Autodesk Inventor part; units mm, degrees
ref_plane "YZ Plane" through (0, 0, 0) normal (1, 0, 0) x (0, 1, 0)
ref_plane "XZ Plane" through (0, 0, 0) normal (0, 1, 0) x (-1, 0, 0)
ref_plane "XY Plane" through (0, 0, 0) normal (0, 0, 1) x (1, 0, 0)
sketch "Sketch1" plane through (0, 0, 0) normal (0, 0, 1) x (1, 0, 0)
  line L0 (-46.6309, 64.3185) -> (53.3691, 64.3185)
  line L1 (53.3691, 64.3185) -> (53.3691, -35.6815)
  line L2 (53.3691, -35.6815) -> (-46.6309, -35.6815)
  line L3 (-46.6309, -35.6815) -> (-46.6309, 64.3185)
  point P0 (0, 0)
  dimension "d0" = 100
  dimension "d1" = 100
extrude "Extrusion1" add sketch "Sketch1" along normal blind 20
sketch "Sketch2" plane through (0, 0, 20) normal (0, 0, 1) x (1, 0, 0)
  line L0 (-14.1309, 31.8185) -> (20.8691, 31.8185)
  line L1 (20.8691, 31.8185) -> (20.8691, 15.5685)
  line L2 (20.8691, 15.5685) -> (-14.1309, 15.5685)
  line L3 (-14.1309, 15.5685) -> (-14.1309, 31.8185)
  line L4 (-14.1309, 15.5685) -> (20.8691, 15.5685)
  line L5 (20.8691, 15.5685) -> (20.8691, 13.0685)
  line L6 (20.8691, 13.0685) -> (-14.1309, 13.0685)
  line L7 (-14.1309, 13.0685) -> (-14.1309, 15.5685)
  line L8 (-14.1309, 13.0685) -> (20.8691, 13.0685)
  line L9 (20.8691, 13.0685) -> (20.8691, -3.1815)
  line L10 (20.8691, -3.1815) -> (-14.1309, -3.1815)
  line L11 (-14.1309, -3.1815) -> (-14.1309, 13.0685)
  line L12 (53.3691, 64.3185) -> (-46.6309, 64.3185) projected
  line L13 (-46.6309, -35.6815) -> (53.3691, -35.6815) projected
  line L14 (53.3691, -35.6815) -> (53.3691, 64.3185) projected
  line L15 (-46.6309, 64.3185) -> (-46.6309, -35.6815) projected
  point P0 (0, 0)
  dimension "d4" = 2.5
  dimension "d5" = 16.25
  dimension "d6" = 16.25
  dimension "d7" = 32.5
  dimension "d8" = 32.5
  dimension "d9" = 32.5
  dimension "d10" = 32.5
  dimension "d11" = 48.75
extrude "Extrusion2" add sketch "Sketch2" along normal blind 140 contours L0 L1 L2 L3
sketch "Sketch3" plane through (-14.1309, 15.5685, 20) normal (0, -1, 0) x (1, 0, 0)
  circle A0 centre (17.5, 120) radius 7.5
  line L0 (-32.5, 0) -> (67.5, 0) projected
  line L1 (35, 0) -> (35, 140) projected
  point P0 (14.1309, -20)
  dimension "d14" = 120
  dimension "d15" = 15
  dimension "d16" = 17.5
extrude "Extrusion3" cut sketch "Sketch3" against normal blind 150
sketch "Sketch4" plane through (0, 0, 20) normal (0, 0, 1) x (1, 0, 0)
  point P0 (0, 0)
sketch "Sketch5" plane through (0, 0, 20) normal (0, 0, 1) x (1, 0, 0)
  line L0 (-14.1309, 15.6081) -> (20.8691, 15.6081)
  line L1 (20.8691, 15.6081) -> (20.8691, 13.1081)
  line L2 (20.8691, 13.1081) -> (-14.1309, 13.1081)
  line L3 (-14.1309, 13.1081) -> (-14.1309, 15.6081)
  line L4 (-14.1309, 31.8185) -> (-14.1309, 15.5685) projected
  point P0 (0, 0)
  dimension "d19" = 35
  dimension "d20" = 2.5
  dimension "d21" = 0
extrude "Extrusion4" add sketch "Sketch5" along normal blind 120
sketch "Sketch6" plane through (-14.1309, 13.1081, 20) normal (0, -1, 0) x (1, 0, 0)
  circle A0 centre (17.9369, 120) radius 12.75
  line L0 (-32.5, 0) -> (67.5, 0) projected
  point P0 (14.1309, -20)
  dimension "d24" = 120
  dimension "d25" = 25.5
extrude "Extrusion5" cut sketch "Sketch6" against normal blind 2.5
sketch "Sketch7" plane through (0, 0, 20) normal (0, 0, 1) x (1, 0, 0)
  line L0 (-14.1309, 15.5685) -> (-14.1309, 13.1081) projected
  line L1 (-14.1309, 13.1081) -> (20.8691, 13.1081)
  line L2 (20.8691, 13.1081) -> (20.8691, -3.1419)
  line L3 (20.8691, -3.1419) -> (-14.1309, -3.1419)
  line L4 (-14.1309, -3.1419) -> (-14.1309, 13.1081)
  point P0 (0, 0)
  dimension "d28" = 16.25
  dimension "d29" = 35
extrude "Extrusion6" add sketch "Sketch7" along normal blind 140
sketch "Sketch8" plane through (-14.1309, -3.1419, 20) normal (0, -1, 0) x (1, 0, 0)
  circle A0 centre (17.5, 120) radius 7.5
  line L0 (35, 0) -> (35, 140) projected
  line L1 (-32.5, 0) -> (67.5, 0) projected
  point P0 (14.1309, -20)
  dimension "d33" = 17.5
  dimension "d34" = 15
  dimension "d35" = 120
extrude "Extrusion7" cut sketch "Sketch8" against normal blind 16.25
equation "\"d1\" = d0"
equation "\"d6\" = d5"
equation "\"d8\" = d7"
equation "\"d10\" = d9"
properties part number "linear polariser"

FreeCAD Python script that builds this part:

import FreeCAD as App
import Part
import Sketcher

V = App.Vector

doc = App.newDocument("Part")
body = doc.addObject("PartDesign::Body", "Body")

sketch1 = body.newObject("Sketcher::SketchObject", "Sketch")
sketch1.AttachmentSupport = (doc.getObject("XY_Plane"), [""])
sketch1.MapMode = "FlatFace"
sketch1.addGeometry([
    Part.LineSegment(V(53.3691, 64.3185, 0), V(-46.6309, 64.3185, 0)),
    Part.LineSegment(V(-46.6309, 64.3185, 0), V(-46.6309, -35.6815, 0)),
    Part.LineSegment(V(-46.6309, -35.6815, 0), V(53.3691, -35.6815, 0)),
    Part.LineSegment(V(53.3691, -35.6815, 0), V(53.3691, 64.3185, 0)),
], False)
sketch1.addConstraint([
    Sketcher.Constraint("Coincident", 0, 2, 1, 1),
    Sketcher.Constraint("Coincident", 1, 2, 2, 1),
    Sketcher.Constraint("Coincident", 2, 2, 3, 1),
    Sketcher.Constraint("Coincident", 3, 2, 0, 1),
    Sketcher.Constraint("Horizontal", 0),
    Sketcher.Constraint("Vertical", 1),
    Sketcher.Constraint("Horizontal", 2),
    Sketcher.Constraint("Vertical", 3),
    Sketcher.Constraint("Equal", 2, 1),
    Sketcher.Constraint("DistanceX", 0, 2, 0, 1, 100.0),
    Sketcher.Constraint("DistanceX", 0, 2, -1, 1, 46.631),
    Sketcher.Constraint("DistanceY", -1, 1, 0, 2, 64.3185),
])
pad1 = body.newObject("PartDesign::Pad", "Pad")
pad1.Profile = sketch1
pad1.Length = 20

sketch2 = body.newObject("Sketcher::SketchObject", "Sketch001")
sketch2.AttachmentSupport = (doc.getObject("XY_Plane"), [""])
sketch2.MapMode = "FlatFace"
sketch2.AttachmentOffset = App.Placement(V(0, 0, 20), App.Rotation())
sketch2.addGeometry([
    Part.LineSegment(V(20.8691, 31.8185, 0), V(-14.1309, 31.8185, 0)),
    Part.LineSegment(V(-14.1309, 31.8185, 0), V(-14.1309, 15.5685, 0)),
    Part.LineSegment(V(-14.1309, 15.5685, 0), V(20.8691, 15.5685, 0)),
    Part.LineSegment(V(20.8691, 15.5685, 0), V(20.8691, 31.8185, 0)),
], False)
sketch2.addConstraint([
    Sketcher.Constraint("Coincident", 0, 2, 1, 1),
    Sketcher.Constraint("Coincident", 1, 2, 2, 1),
    Sketcher.Constraint("Coincident", 2, 2, 3, 1),
    Sketcher.Constraint("Coincident", 3, 2, 0, 1),
    Sketcher.Constraint("Horizontal", 0),
    Sketcher.Constraint("Vertical", 1),
    Sketcher.Constraint("Horizontal", 2),
    Sketcher.Constraint("Vertical", 3),
    Sketcher.Constraint("DistanceY", 1, 2, 1, 1, 16.25),
    Sketcher.Constraint("DistanceX", 0, 2, 0, 1, 35.0),
    Sketcher.Constraint("DistanceX", 0, 2, -1, 1, 14.131),
    Sketcher.Constraint("DistanceY", -1, 1, 0, 2, 31.8185),
])
pad2 = body.newObject("PartDesign::Pad", "Pad001")
pad2.Profile = sketch2
pad2.Length = 140

sketch3 = body.newObject("Sketcher::SketchObject", "Sketch002")
sketch3.AttachmentSupport = (doc.getObject("XZ_Plane"), [""])
sketch3.MapMode = "FlatFace"
sketch3.AttachmentOffset = App.Placement(V(0, 0, -15.5685), App.Rotation())
sketch3.addGeometry(Part.Circle(V(3.3691, 140, 0), V(0, 0, 1), 7.5), False)
sketch3.addConstraint([
    Sketcher.Constraint("Diameter", 0, 15.0),
    Sketcher.Constraint("DistanceY", -1, 1, 0, 3, 140.0),
    Sketcher.Constraint("DistanceX", -1, 1, 0, 3, 3.369),
])
pocket1 = body.newObject("PartDesign::Pocket", "Pocket")
pocket1.Profile = sketch3
pocket1.Length = 150

sketch4 = body.newObject("Sketcher::SketchObject", "Sketch003")
sketch4.AttachmentSupport = (doc.getObject("XY_Plane"), [""])
sketch4.MapMode = "FlatFace"
sketch4.AttachmentOffset = App.Placement(V(0, 0, 20), App.Rotation())
sketch4.addGeometry([
    Part.LineSegment(V(20.8691, 15.6081, 0), V(-14.1309, 15.6081, 0)),
    Part.LineSegment(V(-14.1309, 15.6081, 0), V(-14.1309, 13.1081, 0)),
    Part.LineSegment(V(-14.1309, 13.1081, 0), V(20.8691, 13.1081, 0)),
    Part.LineSegment(V(20.8691, 13.1081, 0), V(20.8691, 15.6081, 0)),
], False)
sketch4.addConstraint([
    Sketcher.Constraint("Coincident", 0, 2, 1, 1),
    Sketcher.Constraint("Coincident", 1, 2, 2, 1),
    Sketcher.Constraint("Coincident", 2, 2, 3, 1),
    Sketcher.Constraint("Coincident", 3, 2, 0, 1),
    Sketcher.Constraint("Horizontal", 0),
    Sketcher.Constraint("Vertical", 1),
    Sketcher.Constraint("Horizontal", 2),
    Sketcher.Constraint("Vertical", 3),
    Sketcher.Constraint("DistanceX", 0, 2, 0, 1, 35.0),
    Sketcher.Constraint("DistanceY", 1, 2, 1, 1, 2.5),
    Sketcher.Constraint("DistanceX", 0, 2, -1, 1, 14.131),
    Sketcher.Constraint("DistanceY", -1, 1, 0, 2, 15.608),
])
pad3 = body.newObject("PartDesign::Pad", "Pad002")
pad3.Profile = sketch4
pad3.Length = 120

sketch5 = body.newObject("Sketcher::SketchObject", "Sketch004")
sketch5.AttachmentSupport = (doc.getObject("XZ_Plane"), [""])
sketch5.MapMode = "FlatFace"
sketch5.AttachmentOffset = App.Placement(V(0, 0, -13.1081), App.Rotation())
sketch5.addGeometry(Part.Circle(V(3.806, 140, 0), V(0, 0, 1), 12.75), False)
sketch5.addConstraint([
    Sketcher.Constraint("Diameter", 0, 25.5),
    Sketcher.Constraint("DistanceY", -1, 1, 0, 3, 140.0),
    Sketcher.Constraint("DistanceX", -1, 1, 0, 3, 3.806),
])
pocket2 = body.newObject("PartDesign::Pocket", "Pocket001")
pocket2.Profile = sketch5
pocket2.Length = 2.5

sketch6 = body.newObject("Sketcher::SketchObject", "Sketch005")
sketch6.AttachmentSupport = (doc.getObject("XY_Plane"), [""])
sketch6.MapMode = "FlatFace"
sketch6.AttachmentOffset = App.Placement(V(0, 0, 20), App.Rotation())
sketch6.addGeometry([
    Part.LineSegment(V(20.8691, 13.1081, 0), V(-14.1309, 13.1081, 0)),
    Part.LineSegment(V(-14.1309, 13.1081, 0), V(-14.1309, -3.1419, 0)),
    Part.LineSegment(V(-14.1309, -3.1419, 0), V(20.8691, -3.1419, 0)),
    Part.LineSegment(V(20.8691, -3.1419, 0), V(20.8691, 13.1081, 0)),
], False)
sketch6.addConstraint([
    Sketcher.Constraint("Coincident", 0, 2, 1, 1),
    Sketcher.Constraint("Coincident", 1, 2, 2, 1),
    Sketcher.Constraint("Coincident", 2, 2, 3, 1),
    Sketcher.Constraint("Coincident", 3, 2, 0, 1),
    Sketcher.Constraint("Horizontal", 0),
    Sketcher.Constraint("Vertical", 1),
    Sketcher.Constraint("Horizontal", 2),
    Sketcher.Constraint("Vertical", 3),
    Sketcher.Constraint("DistanceX", 0, 2, 0, 1, 35.0),
    Sketcher.Constraint("DistanceY", 1, 2, 1, 1, 16.25),
    Sketcher.Constraint("DistanceX", 0, 2, -1, 1, 14.131),
    Sketcher.Constraint("DistanceY", -1, 1, 0, 2, 13.108),
])
pad4 = body.newObject("PartDesign::Pad", "Pad003")
pad4.Profile = sketch6
pad4.Length = 140

sketch7 = body.newObject("Sketcher::SketchObject", "Sketch006")
sketch7.AttachmentSupport = (doc.getObject("XZ_Plane"), [""])
sketch7.MapMode = "FlatFace"
sketch7.AttachmentOffset = App.Placement(V(0, 0, 3.1419), App.Rotation())
sketch7.addGeometry(Part.Circle(V(3.3691, 140, 0), V(0, 0, 1), 7.5), False)
sketch7.addConstraint([
    Sketcher.Constraint("Diameter", 0, 15.0),
    Sketcher.Constraint("DistanceY", -1, 1, 0, 3, 140.0),
    Sketcher.Constraint("DistanceX", -1, 1, 0, 3, 3.369),
])
pocket3 = body.newObject("PartDesign::Pocket", "Pocket002")
pocket3.Profile = sketch7
pocket3.Length = 16.25

doc.recompute()
